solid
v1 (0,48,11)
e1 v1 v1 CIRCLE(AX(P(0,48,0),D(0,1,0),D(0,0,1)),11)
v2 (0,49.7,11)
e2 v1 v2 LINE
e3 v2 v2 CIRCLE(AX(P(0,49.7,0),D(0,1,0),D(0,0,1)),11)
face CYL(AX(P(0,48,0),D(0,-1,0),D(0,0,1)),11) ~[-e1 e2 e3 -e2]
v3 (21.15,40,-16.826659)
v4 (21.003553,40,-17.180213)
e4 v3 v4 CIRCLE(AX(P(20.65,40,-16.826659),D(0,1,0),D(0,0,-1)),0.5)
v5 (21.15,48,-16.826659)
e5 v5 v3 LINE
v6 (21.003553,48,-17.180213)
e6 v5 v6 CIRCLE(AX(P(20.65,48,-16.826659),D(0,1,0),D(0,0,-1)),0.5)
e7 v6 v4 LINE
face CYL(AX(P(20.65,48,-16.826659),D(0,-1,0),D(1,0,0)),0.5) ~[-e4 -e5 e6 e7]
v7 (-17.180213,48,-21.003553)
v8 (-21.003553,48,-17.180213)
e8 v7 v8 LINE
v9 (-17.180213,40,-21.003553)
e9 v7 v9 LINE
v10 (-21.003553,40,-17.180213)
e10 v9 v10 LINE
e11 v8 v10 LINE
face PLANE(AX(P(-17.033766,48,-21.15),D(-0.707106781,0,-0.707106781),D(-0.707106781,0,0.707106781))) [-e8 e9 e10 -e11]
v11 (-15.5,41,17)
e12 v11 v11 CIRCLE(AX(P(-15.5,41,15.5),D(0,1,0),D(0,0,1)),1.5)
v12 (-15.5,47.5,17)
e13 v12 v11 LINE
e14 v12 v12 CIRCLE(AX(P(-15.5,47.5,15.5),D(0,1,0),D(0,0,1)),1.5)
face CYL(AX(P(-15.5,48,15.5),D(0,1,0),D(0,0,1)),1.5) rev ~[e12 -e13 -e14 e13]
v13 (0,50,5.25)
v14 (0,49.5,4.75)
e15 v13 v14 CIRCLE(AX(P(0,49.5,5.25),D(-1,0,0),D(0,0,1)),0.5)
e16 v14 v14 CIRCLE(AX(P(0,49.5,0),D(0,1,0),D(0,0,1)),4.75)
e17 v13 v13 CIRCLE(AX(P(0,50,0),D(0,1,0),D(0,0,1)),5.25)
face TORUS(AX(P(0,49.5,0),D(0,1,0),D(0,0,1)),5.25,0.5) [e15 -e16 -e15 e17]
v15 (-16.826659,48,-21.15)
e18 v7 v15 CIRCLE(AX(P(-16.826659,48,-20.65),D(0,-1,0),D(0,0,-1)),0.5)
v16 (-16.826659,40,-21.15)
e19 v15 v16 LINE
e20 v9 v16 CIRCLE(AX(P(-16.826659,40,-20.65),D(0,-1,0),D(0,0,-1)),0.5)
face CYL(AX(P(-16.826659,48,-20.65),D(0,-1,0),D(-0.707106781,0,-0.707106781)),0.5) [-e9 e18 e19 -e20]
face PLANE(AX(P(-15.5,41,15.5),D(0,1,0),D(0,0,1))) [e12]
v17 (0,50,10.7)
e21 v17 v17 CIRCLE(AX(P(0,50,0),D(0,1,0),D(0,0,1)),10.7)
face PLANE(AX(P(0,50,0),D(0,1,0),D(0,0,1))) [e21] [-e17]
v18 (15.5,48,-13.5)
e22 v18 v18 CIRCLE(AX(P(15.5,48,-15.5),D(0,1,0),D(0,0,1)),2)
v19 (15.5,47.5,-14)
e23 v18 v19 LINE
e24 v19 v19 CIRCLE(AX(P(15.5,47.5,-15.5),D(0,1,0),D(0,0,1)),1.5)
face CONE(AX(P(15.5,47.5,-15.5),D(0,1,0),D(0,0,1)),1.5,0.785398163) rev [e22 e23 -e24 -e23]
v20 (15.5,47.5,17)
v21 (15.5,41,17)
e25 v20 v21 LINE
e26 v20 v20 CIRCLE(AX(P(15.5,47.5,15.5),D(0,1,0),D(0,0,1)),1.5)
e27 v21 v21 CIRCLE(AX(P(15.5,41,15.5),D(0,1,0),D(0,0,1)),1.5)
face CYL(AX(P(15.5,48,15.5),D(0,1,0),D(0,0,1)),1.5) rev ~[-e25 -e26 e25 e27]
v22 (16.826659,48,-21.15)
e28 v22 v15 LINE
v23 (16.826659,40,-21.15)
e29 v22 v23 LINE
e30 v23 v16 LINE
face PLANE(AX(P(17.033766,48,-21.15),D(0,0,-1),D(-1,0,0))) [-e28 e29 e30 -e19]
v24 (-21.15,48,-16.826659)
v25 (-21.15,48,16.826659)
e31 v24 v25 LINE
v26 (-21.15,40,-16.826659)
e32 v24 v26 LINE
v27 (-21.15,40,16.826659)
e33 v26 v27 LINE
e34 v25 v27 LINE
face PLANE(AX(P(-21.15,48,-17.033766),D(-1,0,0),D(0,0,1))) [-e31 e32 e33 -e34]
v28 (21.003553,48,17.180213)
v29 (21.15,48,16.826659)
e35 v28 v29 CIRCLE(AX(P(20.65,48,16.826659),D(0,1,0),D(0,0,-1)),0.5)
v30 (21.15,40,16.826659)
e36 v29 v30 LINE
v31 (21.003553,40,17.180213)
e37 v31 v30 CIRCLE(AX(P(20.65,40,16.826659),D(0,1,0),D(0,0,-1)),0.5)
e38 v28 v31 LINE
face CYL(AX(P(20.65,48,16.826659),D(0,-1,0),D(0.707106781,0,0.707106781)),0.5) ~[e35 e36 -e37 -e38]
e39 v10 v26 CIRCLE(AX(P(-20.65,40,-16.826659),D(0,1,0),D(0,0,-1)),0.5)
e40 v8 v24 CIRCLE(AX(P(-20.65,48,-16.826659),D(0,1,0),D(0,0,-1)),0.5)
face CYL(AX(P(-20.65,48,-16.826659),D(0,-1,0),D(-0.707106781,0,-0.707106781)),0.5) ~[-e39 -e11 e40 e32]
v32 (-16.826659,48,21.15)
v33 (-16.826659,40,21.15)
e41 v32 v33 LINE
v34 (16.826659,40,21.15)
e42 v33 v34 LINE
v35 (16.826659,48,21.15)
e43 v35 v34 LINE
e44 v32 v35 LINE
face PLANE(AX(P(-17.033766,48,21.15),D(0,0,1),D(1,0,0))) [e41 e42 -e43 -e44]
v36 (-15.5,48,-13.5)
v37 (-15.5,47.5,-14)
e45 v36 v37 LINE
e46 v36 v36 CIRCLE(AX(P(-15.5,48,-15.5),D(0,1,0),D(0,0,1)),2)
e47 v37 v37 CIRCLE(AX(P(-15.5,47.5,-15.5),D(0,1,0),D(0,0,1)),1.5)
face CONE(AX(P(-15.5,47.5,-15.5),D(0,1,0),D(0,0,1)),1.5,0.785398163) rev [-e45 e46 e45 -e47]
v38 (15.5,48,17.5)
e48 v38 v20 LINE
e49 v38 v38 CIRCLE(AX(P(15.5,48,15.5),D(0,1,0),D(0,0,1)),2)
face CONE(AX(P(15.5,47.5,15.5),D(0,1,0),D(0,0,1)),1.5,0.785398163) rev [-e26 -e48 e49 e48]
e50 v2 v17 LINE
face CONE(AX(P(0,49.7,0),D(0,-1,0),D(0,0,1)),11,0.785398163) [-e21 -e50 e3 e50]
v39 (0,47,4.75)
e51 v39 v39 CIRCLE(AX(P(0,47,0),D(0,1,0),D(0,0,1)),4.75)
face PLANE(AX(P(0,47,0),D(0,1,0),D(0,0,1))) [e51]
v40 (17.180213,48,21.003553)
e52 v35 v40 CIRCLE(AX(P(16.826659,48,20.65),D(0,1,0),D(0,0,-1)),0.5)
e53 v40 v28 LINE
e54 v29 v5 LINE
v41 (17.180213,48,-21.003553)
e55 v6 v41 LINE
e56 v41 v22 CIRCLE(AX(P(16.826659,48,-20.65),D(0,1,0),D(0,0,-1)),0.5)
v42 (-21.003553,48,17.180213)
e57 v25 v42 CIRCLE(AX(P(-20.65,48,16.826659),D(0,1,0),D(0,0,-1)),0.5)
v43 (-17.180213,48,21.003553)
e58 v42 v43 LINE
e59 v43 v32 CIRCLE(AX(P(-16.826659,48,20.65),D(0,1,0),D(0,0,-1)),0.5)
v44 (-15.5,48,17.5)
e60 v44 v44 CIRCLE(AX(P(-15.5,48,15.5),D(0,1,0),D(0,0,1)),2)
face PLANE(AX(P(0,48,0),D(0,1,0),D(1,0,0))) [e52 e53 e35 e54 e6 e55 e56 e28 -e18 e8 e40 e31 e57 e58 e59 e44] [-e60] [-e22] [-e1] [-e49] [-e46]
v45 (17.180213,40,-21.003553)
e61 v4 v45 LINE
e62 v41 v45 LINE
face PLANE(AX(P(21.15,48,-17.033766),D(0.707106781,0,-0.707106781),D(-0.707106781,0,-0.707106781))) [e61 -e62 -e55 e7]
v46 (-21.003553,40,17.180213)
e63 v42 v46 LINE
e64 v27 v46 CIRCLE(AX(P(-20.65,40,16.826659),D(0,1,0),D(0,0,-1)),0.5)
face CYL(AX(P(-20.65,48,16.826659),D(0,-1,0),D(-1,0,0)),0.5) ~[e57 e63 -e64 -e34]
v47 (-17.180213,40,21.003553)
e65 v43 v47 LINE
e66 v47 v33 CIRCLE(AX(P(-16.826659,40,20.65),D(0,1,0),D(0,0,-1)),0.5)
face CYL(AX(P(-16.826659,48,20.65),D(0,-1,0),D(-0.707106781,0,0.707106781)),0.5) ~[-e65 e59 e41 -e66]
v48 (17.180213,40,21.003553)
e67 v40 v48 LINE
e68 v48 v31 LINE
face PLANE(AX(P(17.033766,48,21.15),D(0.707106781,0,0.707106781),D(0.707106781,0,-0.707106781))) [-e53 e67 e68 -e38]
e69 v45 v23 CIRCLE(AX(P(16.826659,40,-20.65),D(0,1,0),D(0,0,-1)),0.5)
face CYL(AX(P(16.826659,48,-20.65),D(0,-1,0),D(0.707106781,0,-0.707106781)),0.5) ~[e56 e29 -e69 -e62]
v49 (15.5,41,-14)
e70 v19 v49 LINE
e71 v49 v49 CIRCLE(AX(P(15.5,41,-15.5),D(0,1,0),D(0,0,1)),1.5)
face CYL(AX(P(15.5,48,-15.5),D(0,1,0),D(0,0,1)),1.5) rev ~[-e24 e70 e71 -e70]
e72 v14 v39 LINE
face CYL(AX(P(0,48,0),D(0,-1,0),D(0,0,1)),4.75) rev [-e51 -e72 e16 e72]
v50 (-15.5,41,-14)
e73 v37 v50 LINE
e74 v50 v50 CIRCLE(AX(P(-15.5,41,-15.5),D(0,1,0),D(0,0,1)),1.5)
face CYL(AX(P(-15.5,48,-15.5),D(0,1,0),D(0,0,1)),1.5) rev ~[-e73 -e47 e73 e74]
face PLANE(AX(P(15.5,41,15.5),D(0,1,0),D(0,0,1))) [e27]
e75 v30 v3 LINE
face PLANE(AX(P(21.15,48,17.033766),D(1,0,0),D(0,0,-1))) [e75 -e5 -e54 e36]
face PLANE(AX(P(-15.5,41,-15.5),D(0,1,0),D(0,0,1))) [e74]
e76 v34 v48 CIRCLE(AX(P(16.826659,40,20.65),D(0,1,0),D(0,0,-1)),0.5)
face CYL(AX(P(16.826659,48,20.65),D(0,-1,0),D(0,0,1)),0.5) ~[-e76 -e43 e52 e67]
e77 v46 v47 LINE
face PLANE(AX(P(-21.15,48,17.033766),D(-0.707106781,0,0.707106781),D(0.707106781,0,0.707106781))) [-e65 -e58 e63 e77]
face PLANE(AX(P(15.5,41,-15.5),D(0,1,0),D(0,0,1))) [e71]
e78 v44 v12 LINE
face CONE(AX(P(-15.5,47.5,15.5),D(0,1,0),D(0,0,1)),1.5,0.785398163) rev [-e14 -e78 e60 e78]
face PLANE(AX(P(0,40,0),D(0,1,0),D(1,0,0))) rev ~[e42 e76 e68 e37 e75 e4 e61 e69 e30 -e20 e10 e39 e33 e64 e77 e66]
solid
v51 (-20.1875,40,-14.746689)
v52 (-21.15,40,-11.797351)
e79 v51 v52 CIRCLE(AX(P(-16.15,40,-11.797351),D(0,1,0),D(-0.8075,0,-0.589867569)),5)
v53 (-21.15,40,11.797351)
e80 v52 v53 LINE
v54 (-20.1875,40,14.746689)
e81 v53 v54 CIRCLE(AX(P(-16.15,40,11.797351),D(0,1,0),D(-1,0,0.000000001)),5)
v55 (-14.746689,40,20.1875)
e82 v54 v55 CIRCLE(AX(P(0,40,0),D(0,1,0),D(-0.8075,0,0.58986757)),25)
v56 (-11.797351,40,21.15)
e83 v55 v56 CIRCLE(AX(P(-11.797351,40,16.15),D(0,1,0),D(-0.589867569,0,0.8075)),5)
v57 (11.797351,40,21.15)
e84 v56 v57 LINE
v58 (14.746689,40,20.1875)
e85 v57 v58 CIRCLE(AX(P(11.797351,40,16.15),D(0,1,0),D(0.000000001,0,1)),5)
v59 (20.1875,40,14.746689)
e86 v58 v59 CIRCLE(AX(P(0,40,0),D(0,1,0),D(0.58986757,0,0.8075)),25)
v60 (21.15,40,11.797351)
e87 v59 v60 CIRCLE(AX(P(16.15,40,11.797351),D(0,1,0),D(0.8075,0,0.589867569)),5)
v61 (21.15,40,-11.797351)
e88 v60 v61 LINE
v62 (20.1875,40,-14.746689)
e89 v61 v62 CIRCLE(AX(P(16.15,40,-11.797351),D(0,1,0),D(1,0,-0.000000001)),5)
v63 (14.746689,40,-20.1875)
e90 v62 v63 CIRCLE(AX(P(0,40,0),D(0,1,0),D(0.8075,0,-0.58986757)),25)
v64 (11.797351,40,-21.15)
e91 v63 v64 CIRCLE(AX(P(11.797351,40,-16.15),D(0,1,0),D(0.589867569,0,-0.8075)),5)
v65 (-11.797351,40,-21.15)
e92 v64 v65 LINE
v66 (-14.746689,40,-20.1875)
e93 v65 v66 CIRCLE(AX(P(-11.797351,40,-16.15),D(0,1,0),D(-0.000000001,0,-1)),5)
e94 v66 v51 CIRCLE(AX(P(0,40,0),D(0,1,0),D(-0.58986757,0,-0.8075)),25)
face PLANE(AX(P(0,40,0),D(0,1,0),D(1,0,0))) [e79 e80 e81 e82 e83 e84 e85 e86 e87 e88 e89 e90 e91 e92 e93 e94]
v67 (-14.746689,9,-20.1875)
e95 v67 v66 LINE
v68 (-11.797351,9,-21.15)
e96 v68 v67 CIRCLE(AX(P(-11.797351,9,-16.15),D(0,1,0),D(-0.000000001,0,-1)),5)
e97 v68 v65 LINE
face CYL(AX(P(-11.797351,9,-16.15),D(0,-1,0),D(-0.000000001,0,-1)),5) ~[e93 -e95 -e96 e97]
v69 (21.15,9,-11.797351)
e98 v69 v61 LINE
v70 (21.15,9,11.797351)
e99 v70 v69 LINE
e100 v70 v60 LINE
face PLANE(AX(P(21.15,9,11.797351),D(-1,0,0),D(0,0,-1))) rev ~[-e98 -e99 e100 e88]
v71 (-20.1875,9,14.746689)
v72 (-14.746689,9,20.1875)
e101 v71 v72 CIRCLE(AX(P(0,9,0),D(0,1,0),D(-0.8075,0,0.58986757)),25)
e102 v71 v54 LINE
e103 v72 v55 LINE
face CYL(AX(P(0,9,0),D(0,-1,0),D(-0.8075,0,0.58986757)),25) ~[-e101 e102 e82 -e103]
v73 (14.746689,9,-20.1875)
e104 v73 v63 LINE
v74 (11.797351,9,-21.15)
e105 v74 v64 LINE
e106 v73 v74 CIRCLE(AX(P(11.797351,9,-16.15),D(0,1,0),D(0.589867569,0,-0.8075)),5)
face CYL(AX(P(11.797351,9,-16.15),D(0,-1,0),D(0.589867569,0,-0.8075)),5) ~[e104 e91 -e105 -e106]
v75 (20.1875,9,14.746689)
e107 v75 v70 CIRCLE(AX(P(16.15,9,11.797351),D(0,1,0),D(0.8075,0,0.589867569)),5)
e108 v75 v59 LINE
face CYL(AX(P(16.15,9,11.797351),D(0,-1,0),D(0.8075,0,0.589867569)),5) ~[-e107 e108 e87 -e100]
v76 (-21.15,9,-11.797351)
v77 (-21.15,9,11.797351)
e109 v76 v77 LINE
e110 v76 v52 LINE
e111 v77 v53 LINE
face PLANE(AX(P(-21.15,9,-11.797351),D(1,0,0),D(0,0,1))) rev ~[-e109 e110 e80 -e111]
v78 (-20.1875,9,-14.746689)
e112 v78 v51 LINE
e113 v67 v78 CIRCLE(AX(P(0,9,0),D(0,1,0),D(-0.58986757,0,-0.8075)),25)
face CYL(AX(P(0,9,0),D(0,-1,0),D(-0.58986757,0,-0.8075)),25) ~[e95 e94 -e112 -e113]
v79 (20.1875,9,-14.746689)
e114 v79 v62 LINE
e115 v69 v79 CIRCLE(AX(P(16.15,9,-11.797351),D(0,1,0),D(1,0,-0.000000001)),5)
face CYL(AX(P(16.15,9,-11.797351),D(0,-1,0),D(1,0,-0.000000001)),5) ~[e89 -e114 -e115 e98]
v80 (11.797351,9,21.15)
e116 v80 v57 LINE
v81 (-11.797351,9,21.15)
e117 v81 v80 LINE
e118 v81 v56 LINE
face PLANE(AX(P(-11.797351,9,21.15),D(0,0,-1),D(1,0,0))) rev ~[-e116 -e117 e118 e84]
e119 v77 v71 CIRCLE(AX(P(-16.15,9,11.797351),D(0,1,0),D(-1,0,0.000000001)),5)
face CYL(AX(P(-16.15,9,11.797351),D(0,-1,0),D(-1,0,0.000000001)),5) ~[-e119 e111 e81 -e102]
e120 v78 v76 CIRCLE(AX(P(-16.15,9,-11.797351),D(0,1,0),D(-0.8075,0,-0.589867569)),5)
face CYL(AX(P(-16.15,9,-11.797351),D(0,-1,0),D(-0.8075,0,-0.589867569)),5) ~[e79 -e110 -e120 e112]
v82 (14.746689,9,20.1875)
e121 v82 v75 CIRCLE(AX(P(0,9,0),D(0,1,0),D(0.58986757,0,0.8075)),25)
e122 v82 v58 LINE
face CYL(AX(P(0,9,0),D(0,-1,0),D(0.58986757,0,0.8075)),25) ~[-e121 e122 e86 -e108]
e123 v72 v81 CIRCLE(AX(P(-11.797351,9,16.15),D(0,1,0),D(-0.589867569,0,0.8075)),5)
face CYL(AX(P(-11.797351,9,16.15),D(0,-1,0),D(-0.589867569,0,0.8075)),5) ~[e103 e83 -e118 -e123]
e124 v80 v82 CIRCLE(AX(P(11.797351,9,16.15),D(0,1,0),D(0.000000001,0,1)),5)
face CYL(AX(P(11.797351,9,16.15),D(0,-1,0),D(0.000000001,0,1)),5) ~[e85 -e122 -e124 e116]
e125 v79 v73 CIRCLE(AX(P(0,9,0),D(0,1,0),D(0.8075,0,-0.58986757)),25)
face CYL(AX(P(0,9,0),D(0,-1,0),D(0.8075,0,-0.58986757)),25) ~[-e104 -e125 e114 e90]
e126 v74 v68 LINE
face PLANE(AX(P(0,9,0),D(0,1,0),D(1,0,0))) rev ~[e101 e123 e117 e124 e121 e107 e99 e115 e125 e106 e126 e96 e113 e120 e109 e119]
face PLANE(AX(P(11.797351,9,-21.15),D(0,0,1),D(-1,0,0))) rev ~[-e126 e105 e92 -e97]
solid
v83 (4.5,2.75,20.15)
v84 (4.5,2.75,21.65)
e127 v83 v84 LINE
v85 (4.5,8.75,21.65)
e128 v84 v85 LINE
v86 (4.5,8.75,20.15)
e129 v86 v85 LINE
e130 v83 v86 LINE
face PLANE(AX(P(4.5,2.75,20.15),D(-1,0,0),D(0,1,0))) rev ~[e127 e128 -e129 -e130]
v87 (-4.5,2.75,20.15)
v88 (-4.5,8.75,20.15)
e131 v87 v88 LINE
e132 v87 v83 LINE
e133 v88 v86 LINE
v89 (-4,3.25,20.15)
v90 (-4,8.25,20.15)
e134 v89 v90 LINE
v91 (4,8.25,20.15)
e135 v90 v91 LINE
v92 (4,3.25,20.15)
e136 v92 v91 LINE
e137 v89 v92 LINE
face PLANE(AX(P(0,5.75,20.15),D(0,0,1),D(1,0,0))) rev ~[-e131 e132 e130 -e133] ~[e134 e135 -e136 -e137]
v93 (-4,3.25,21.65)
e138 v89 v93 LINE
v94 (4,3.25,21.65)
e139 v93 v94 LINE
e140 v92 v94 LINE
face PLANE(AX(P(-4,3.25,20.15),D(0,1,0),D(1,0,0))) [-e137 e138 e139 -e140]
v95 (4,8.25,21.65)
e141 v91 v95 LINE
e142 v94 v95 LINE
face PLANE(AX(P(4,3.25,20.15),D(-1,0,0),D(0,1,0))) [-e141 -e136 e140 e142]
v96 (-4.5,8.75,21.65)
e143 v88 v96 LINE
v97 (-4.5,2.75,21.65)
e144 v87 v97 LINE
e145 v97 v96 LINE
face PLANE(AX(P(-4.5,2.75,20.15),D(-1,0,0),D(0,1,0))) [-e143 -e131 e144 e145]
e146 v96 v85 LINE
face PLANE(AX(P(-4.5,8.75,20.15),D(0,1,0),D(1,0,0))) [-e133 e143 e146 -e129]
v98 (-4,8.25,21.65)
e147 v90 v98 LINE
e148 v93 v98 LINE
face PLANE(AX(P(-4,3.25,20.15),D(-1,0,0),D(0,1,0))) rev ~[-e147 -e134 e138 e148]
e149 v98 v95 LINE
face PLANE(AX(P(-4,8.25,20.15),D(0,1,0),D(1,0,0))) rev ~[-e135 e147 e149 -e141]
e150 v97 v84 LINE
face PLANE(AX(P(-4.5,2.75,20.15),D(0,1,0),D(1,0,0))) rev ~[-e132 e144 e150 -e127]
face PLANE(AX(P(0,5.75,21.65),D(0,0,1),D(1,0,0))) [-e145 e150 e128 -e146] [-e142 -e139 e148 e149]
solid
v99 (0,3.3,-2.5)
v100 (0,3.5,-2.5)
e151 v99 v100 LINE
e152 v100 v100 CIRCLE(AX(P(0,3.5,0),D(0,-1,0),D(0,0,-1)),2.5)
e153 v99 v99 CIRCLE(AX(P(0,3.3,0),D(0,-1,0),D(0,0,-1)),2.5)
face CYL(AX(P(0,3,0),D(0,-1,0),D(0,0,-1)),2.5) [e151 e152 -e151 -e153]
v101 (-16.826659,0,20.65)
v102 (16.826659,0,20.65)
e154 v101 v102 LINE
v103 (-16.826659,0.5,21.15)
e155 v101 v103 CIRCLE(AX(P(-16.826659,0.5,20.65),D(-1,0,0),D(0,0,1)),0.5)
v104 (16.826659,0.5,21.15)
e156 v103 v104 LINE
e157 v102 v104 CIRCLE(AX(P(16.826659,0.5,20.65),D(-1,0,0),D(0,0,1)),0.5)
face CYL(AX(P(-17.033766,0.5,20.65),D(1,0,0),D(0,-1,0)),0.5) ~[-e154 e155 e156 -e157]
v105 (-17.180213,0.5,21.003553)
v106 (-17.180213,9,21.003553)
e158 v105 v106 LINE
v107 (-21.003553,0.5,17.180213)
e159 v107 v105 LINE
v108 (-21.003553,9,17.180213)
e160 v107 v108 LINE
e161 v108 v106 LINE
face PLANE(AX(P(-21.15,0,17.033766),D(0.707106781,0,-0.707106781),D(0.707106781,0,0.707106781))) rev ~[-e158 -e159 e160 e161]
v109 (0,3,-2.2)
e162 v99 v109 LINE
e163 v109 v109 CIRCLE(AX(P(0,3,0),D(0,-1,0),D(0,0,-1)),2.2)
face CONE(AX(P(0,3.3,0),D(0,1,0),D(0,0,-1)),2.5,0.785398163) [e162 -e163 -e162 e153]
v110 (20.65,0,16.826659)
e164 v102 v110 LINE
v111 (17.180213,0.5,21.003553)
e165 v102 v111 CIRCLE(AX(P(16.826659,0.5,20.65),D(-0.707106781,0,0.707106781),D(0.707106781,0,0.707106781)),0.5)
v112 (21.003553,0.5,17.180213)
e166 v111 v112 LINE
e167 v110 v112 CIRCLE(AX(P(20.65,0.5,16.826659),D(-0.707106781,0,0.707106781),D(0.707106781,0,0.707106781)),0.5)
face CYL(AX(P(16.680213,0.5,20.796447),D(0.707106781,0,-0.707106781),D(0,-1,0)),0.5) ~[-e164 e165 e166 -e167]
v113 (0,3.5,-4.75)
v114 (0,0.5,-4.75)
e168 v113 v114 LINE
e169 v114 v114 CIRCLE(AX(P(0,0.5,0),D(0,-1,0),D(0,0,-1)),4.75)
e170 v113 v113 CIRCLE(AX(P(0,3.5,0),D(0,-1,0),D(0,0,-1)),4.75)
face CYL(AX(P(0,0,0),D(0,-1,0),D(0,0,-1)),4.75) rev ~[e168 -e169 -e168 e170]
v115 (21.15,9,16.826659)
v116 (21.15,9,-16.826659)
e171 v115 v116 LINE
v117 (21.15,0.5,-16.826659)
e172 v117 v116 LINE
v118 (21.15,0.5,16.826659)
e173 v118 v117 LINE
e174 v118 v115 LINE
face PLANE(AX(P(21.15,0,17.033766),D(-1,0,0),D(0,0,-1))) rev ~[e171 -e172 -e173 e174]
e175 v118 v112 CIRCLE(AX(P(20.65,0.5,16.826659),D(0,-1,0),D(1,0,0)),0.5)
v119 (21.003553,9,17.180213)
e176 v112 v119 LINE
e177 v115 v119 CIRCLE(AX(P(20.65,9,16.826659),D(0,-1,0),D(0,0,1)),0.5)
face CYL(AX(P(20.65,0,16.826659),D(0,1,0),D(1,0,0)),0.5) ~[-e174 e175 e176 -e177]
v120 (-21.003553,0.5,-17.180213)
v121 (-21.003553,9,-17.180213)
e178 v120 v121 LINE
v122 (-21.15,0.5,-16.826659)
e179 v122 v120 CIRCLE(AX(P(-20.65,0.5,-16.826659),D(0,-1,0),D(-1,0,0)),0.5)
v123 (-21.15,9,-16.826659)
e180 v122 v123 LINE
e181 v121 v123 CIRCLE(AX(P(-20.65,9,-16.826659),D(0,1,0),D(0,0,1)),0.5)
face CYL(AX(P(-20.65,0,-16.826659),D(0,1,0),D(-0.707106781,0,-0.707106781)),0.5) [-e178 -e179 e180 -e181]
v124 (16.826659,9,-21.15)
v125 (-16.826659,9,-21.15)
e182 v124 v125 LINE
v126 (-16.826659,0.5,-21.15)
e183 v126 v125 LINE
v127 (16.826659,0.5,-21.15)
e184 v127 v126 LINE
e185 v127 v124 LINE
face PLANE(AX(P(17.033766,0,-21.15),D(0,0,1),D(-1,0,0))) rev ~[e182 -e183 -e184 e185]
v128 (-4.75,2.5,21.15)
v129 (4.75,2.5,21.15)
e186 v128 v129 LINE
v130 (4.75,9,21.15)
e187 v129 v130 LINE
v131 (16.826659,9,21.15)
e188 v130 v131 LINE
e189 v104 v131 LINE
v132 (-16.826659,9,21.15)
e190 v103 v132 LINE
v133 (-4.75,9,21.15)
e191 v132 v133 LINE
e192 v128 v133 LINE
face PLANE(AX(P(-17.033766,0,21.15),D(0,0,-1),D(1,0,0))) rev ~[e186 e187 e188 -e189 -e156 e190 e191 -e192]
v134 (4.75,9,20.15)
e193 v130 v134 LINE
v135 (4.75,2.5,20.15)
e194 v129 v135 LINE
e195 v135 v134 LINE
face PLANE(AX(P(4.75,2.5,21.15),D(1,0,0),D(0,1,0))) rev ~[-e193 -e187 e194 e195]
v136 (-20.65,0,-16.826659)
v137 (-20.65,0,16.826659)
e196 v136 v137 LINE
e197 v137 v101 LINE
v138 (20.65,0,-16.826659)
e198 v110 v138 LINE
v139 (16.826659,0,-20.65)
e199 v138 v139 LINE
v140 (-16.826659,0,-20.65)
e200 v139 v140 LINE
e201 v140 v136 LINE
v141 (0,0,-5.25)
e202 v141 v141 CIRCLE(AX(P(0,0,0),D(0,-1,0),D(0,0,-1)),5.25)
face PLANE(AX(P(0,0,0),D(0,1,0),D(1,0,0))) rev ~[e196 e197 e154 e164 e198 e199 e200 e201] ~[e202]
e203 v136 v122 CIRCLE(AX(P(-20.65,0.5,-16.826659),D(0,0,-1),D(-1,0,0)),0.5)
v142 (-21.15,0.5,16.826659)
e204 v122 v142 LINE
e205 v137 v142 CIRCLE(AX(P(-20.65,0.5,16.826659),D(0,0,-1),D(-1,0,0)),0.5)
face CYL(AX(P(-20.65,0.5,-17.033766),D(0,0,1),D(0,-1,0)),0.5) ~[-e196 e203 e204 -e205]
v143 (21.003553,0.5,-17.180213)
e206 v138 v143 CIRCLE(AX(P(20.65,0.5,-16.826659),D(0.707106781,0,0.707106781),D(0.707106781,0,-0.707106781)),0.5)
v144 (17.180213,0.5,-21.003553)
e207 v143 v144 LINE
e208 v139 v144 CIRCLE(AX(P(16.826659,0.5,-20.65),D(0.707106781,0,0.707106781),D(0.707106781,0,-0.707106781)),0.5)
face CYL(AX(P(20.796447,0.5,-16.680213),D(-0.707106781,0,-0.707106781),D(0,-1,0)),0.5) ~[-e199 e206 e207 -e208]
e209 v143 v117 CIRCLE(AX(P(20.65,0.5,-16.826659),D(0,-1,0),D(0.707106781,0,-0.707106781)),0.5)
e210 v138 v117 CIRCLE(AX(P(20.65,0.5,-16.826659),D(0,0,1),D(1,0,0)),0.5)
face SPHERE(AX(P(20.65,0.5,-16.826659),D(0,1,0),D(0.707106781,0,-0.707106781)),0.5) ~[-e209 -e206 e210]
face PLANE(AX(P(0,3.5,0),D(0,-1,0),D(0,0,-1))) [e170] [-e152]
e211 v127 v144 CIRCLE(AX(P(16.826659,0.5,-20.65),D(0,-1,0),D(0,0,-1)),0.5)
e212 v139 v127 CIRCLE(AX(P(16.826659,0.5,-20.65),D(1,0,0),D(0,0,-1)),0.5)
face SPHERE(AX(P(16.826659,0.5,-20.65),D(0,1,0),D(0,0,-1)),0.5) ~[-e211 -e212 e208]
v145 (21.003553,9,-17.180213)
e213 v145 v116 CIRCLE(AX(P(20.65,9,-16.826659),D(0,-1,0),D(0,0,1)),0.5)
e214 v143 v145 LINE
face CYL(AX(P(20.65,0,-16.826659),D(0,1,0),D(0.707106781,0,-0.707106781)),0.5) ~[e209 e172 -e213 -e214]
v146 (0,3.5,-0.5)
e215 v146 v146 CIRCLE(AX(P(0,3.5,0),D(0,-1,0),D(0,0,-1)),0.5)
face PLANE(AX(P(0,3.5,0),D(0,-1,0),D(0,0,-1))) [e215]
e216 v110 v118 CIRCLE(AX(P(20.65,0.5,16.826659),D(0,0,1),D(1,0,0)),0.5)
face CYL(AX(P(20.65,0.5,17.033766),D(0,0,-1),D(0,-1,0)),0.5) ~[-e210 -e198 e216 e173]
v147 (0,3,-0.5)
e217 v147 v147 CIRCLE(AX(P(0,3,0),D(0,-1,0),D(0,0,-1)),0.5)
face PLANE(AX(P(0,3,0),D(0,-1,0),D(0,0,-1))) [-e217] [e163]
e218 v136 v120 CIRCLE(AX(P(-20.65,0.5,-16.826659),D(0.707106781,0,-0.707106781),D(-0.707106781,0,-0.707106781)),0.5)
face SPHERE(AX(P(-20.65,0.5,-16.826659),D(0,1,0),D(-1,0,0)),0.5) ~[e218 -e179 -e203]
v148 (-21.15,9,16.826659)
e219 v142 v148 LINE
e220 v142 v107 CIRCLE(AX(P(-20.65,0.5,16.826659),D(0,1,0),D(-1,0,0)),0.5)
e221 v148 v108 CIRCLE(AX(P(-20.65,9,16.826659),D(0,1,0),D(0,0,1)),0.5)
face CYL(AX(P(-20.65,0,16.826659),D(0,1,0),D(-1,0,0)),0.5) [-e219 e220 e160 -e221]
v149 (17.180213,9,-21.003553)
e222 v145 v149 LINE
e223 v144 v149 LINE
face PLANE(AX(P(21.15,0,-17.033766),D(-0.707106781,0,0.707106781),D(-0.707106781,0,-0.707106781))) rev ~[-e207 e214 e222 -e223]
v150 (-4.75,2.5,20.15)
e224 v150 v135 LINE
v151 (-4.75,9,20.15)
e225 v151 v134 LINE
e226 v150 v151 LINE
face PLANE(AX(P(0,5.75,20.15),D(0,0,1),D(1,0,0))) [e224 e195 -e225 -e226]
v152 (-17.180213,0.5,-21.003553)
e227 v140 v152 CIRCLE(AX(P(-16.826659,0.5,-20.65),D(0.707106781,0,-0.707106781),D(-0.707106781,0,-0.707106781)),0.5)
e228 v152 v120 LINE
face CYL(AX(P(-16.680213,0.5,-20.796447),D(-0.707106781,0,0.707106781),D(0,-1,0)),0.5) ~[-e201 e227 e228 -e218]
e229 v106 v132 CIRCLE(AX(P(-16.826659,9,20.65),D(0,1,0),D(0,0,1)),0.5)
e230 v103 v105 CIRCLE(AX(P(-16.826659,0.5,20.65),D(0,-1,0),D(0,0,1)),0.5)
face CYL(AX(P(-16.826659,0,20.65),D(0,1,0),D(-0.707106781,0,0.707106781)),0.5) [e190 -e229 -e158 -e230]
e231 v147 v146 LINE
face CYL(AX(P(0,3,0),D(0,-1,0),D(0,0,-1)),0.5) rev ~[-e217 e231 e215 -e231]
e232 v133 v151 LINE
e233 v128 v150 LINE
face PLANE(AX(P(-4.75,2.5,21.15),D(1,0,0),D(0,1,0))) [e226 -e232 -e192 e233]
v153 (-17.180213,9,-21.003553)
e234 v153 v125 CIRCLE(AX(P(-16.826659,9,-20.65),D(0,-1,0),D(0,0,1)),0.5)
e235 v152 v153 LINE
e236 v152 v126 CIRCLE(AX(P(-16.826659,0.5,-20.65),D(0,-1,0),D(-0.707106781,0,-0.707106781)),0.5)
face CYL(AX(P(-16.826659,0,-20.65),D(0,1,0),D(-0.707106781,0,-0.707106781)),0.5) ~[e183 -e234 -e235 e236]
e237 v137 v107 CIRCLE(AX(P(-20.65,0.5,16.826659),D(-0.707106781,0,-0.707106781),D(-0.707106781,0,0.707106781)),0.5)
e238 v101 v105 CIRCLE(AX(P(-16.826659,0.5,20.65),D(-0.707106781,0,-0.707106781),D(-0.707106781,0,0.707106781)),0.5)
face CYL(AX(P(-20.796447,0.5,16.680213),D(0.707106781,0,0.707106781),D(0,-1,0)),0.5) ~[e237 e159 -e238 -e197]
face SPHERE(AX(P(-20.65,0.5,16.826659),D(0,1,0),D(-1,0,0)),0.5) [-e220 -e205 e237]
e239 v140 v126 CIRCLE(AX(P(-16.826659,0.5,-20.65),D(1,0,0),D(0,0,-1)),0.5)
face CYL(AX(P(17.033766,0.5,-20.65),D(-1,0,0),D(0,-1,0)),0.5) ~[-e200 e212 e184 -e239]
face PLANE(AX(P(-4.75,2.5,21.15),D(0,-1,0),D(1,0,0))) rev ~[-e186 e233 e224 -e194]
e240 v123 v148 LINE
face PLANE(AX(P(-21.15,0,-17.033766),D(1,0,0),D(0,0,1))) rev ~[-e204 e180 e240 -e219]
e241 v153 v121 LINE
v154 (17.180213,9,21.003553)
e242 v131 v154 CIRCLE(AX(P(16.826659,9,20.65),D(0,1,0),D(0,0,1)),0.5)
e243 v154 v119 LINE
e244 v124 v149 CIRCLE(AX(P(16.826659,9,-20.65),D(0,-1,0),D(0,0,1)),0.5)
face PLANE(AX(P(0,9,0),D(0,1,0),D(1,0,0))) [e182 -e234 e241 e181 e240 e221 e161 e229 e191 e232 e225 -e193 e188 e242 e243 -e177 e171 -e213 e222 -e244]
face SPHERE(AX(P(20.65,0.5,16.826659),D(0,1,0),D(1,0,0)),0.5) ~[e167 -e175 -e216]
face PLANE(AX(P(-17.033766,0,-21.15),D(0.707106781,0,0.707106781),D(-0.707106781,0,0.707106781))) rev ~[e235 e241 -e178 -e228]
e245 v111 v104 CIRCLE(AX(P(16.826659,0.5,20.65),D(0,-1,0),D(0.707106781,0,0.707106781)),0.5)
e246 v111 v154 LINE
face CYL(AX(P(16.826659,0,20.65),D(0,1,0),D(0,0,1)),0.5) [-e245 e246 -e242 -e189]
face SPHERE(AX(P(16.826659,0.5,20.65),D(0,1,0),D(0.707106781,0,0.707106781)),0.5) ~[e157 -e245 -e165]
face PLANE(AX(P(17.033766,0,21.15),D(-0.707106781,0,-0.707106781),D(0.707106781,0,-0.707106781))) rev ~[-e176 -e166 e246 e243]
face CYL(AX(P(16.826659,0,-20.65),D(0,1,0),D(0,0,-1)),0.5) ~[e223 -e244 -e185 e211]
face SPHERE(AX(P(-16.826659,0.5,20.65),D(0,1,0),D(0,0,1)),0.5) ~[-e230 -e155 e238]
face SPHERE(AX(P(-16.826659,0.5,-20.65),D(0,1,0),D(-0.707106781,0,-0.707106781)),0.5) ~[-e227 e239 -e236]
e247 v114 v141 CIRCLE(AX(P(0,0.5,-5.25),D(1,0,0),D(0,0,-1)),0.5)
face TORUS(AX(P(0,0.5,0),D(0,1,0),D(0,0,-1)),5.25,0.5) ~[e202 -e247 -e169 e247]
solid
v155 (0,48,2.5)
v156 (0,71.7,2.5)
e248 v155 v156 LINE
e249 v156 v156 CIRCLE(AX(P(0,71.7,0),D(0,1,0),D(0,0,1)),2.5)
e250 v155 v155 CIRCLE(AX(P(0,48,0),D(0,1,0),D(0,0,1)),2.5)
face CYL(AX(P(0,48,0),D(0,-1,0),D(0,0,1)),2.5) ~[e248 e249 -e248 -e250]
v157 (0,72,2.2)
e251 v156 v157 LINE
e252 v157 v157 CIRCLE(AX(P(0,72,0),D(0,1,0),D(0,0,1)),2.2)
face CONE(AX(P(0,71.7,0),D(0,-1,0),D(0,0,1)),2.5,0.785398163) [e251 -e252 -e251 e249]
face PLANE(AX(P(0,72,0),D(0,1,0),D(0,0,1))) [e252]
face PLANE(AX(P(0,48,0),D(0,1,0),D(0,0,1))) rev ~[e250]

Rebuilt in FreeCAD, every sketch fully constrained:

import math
import FreeCAD as App
import Part
import Sketcher
from FreeCAD import Vector
Q = App.Units.Quantity


def edges_at(feature, points):
    """Names of the edges that pass closest to the given points."""
    edges = feature.Shape.Edges
    near = lambda p: min(range(len(edges)), key=lambda i: edges[i].distToShape(Part.Vertex(*p))[0])
    return sorted({f"Edge{near(p) + 1}" for p in points})

doc = App.newDocument("Part")
body = doc.addObject("PartDesign::Body", "Body")

sketch1 = body.newObject("Sketcher::SketchObject", "Sketch")
sketch1.AttachmentSupport = (doc.getObject("XZ_Plane"), [""])
sketch1.MapMode = "FlatFace"
sketch1.addGeometry(Part.LineSegment(Vector(-17.033766, -21.15, 0), Vector(-21.15, -17.033766, 0)), False)
sketch1.addGeometry(Part.LineSegment(Vector(-21.15, -17.033766, 0), Vector(-21.15, 17.033766, 0)), False)
sketch1.addGeometry(Part.LineSegment(Vector(-21.15, 17.033766, 0), Vector(-17.033766, 21.15, 0)), False)
sketch1.addGeometry(Part.LineSegment(Vector(-17.033766, 21.15, 0), Vector(17.033766, 21.15, 0)), False)
sketch1.addGeometry(Part.LineSegment(Vector(17.033766, 21.15, 0), Vector(21.15, 17.033766, 0)), False)
sketch1.addGeometry(Part.LineSegment(Vector(21.15, 17.033766, 0), Vector(21.15, -17.033766, 0)), False)
sketch1.addGeometry(Part.LineSegment(Vector(21.15, -17.033766, 0), Vector(17.033766, -21.15, 0)), False)
sketch1.addGeometry(Part.LineSegment(Vector(17.033766, -21.15, 0), Vector(-17.033766, -21.15, 0)), False)
sketch1.addConstraint(Sketcher.Constraint("Coincident", 0, 2, 1, 1))
sketch1.addConstraint(Sketcher.Constraint("Coincident", 1, 2, 2, 1))
sketch1.addConstraint(Sketcher.Constraint("Coincident", 2, 2, 3, 1))
sketch1.addConstraint(Sketcher.Constraint("Coincident", 3, 2, 4, 1))
sketch1.addConstraint(Sketcher.Constraint("Coincident", 4, 2, 5, 1))
sketch1.addConstraint(Sketcher.Constraint("Coincident", 5, 2, 6, 1))
sketch1.addConstraint(Sketcher.Constraint("Coincident", 6, 2, 7, 1))
sketch1.addConstraint(Sketcher.Constraint("Coincident", 7, 2, 0, 1))
sketch1.addConstraint(Sketcher.Constraint("Vertical", 1))
sketch1.addConstraint(Sketcher.Constraint("Horizontal", 3))
sketch1.addConstraint(Sketcher.Constraint("Vertical", 5))
sketch1.addConstraint(Sketcher.Constraint("Horizontal", 7))
sketch1.addConstraint(Sketcher.Constraint("Symmetric", 0, 2, 4, 2, -1, 1))
sketch1.addConstraint(Sketcher.Constraint("Symmetric", 2, 2, 6, 2, -1, 1))
sketch1.addConstraint(Sketcher.Constraint("Perpendicular", 0, 2))
sketch1.addConstraint(Sketcher.Constraint("Perpendicular", 2, 4))
sketch1.addConstraint(Sketcher.Constraint("Perpendicular", 4, 6))
sketch1.addConstraint(Sketcher.Constraint("Horizontal", 1, 2, 4, 2))
sketch1.addConstraint(Sketcher.Constraint("Vertical", 3, 2, 6, 2))
sketch1.addConstraint(Sketcher.Constraint("Equal", 7, 1))
sketch1.addConstraint(Sketcher.Constraint("DistanceX", 1, 2, 4, 2, Q("42.3 mm")))
sketch1.addConstraint(Sketcher.Constraint("DistanceX", 3, 1, 3, 2, Q("34.067532 mm")))
pad1 = body.newObject("PartDesign::Pad", "Pad")
pad1.Profile = sketch1
pad1.Length = 9
pad1.Reversed = True

sketch2 = body.newObject("Sketcher::SketchObject", "Sketch001")
sketch2.AttachmentSupport = (doc.getObject("XZ_Plane"), [""])
sketch2.MapMode = "FlatFace"
sketch2.addGeometry(Part.Circle(Vector(0, 0, 0), Vector(0, 0, 1), 4.75), False)
sketch2.addConstraint(Sketcher.Constraint("Coincident", 0, 3, -1, 1))
sketch2.addConstraint(Sketcher.Constraint("Diameter", 0, Q("9.5 mm")))
pocket1 = body.newObject("PartDesign::Pocket", "Pocket")
pocket1.Profile = sketch2
pocket1.Length = 3

sketch3 = body.newObject("Sketcher::SketchObject", "Sketch002")
sketch3.AttachmentSupport = (doc.getObject("XZ_Plane"), [""])
sketch3.MapMode = "FlatFace"
sketch3.AttachmentOffset = App.Placement(Vector(0, 0, -3), App.Rotation())
sketch3.addGeometry(Part.Circle(Vector(0, 0, 0), Vector(0, 0, 1), 4.75), False)
sketch3.addGeometry(Part.Circle(Vector(0, 0, 0), Vector(0, 0, 1), 2.5), False)
sketch3.addConstraint(Sketcher.Constraint("Coincident", 0, 3, -1, 1))
sketch3.addConstraint(Sketcher.Constraint("Coincident", 1, 3, -1, 1))
sketch3.addConstraint(Sketcher.Constraint("Diameter", 1, Q("5 mm")))
sketch3.addConstraint(Sketcher.Constraint("Diameter", 0, Q("9.5 mm")))
pocket2 = body.newObject("PartDesign::Pocket", "Pocket001")
pocket2.Profile = sketch3
pocket2.Length = 0.5

sketch4 = body.newObject("Sketcher::SketchObject", "Sketch003")
sketch4.AttachmentSupport = (doc.getObject("XZ_Plane"), [""])
sketch4.MapMode = "FlatFace"
sketch4.AttachmentOffset = App.Placement(Vector(0, 0, -3), App.Rotation())
sketch4.addGeometry(Part.Circle(Vector(0, 0, 0), Vector(0, 0, 1), 0.5), False)
sketch4.addConstraint(Sketcher.Constraint("Coincident", 0, 3, -1, 1))
sketch4.addConstraint(Sketcher.Constraint("Diameter", 0, Q("1 mm")))
pocket3 = body.newObject("PartDesign::Pocket", "Pocket002")
pocket3.Profile = sketch4
pocket3.Length = 0.5
doc.recompute()

chamfer = body.newObject("PartDesign::Chamfer", "Chamfer")
chamfer.Base = (pocket3, edges_at(pocket3, [(0, 3, 2.5)]))
chamfer.Size = 0.3
doc.recompute()

fillet = body.newObject("PartDesign::Fillet", "Fillet")
fillet.Base = (chamfer, edges_at(chamfer, [
    (0, 0, -21.15),
    (19.092, 0, -19.092),
    (21.15, 0, 0),
    (19.092, 0, 19.092),
    (0, 0, 21.15),
    (-19.092, 0, 19.092),
    (-21.15, 4.5, 17.034),
    (-21.15, 4.5, -17.034),
    (-17.034, 4.5, -21.15),
    (17.034, 4.5, -21.15),
    (21.15, 4.5, -17.034),
    (21.15, 4.5, 17.034),
    (17.034, 4.5, 21.15),
    (-17.034, 4.5, 21.15),
    (0, 0, 4.75),
    (-21.15, 0, 0),
    (-19.092, 0, -19.092),
]))
fillet.Radius = 0.5

sketch5 = body.newObject("Sketcher::SketchObject", "Sketch004")
sketch5.AttachmentSupport = (doc.getObject("XY_Plane"), [""])
sketch5.MapMode = "FlatFace"
sketch5.AttachmentOffset = App.Placement(Vector(0, 0, 21.15), App.Rotation())
sketch5.addGeometry(Part.LineSegment(Vector(-4.75, 9, 0), Vector(-4.75, 2.5, 0)), False)
sketch5.addGeometry(Part.LineSegment(Vector(-4.75, 2.5, 0), Vector(4.75, 2.5, 0)), False)
sketch5.addGeometry(Part.LineSegment(Vector(4.75, 2.5, 0), Vector(4.75, 9, 0)), False)
sketch5.addGeometry(Part.LineSegment(Vector(4.75, 9, 0), Vector(-4.75, 9, 0)), False)
sketch5.addConstraint(Sketcher.Constraint("Coincident", 0, 2, 1, 1))
sketch5.addConstraint(Sketcher.Constraint("Coincident", 1, 2, 2, 1))
sketch5.addConstraint(Sketcher.Constraint("Coincident", 2, 2, 3, 1))
sketch5.addConstraint(Sketcher.Constraint("Coincident", 3, 2, 0, 1))
sketch5.addConstraint(Sketcher.Constraint("Vertical", 0))
sketch5.addConstraint(Sketcher.Constraint("Horizontal", 1))
sketch5.addConstraint(Sketcher.Constraint("Vertical", 2))
sketch5.addConstraint(Sketcher.Constraint("Horizontal", 3))
sketch5.addConstraint(Sketcher.Constraint("DistanceX", 1, 1, 1, 2, Q("9.5 mm")))
sketch5.addConstraint(Sketcher.Constraint("DistanceY", 0, 2, 0, 1, Q("6.5 mm")))
sketch5.addConstraint(Sketcher.Constraint("DistanceY", -1, 1, 2, 2, Q("9 mm")))
sketch5.addConstraint(Sketcher.Constraint("DistanceX", 0, 2, -1, 1, Q("4.75 mm")))
pocket4 = body.newObject("PartDesign::Pocket", "Pocket003")
pocket4.Profile = sketch5
pocket4.Length = 1
body2 = doc.addObject("PartDesign::Body", "Body001")

sketch6 = body2.newObject("Sketcher::SketchObject", "Sketch005")
sketch6.AttachmentSupport = (doc.getObject("XZ_Plane001"), [""])
sketch6.MapMode = "FlatFace"
sketch6.AttachmentOffset = App.Placement(Vector(0, 0, -48), App.Rotation())
sketch6.addGeometry(Part.LineSegment(Vector(-17.033766, -21.15, 0), Vector(-21.15, -17.033766, 0)), False)
sketch6.addGeometry(Part.LineSegment(Vector(-21.15, -17.033766, 0), Vector(-21.15, 17.033766, 0)), False)
sketch6.addGeometry(Part.LineSegment(Vector(-21.15, 17.033766, 0), Vector(-17.033766, 21.15, 0)), False)
sketch6.addGeometry(Part.LineSegment(Vector(-17.033766, 21.15, 0), Vector(17.033766, 21.15, 0)), False)
sketch6.addGeometry(Part.LineSegment(Vector(17.033766, 21.15, 0), Vector(21.15, 17.033766, 0)), False)
sketch6.addGeometry(Part.LineSegment(Vector(21.15, 17.033766, 0), Vector(21.15, -17.033766, 0)), False)
sketch6.addGeometry(Part.LineSegment(Vector(21.15, -17.033766, 0), Vector(17.033766, -21.15, 0)), False)
sketch6.addGeometry(Part.LineSegment(Vector(17.033766, -21.15, 0), Vector(-17.033766, -21.15, 0)), False)
sketch6.addConstraint(Sketcher.Constraint("Coincident", 0, 2, 1, 1))
sketch6.addConstraint(Sketcher.Constraint("Coincident", 1, 2, 2, 1))
sketch6.addConstraint(Sketcher.Constraint("Coincident", 2, 2, 3, 1))
sketch6.addConstraint(Sketcher.Constraint("Coincident", 3, 2, 4, 1))
sketch6.addConstraint(Sketcher.Constraint("Coincident", 4, 2, 5, 1))
sketch6.addConstraint(Sketcher.Constraint("Coincident", 5, 2, 6, 1))
sketch6.addConstraint(Sketcher.Constraint("Coincident", 6, 2, 7, 1))
sketch6.addConstraint(Sketcher.Constraint("Coincident", 7, 2, 0, 1))
sketch6.addConstraint(Sketcher.Constraint("Vertical", 1))
sketch6.addConstraint(Sketcher.Constraint("Horizontal", 3))
sketch6.addConstraint(Sketcher.Constraint("Vertical", 5))
sketch6.addConstraint(Sketcher.Constraint("Horizontal", 7))
sketch6.addConstraint(Sketcher.Constraint("Symmetric", 0, 2, 4, 2, -1, 1))
sketch6.addConstraint(Sketcher.Constraint("Symmetric", 2, 2, 6, 2, -1, 1))
sketch6.addConstraint(Sketcher.Constraint("Perpendicular", 0, 2))
sketch6.addConstraint(Sketcher.Constraint("Perpendicular", 2, 4))
sketch6.addConstraint(Sketcher.Constraint("Perpendicular", 4, 6))
sketch6.addConstraint(Sketcher.Constraint("Horizontal", 1, 2, 4, 2))
sketch6.addConstraint(Sketcher.Constraint("Vertical", 3, 2, 6, 2))
sketch6.addConstraint(Sketcher.Constraint("Equal", 7, 1))
sketch6.addConstraint(Sketcher.Constraint("DistanceX", 1, 2, 4, 2, Q("42.3 mm")))
sketch6.addConstraint(Sketcher.Constraint("DistanceX", 3, 1, 3, 2, Q("34.067532 mm")))
pad2 = body2.newObject("PartDesign::Pad", "Pad001")
pad2.Profile = sketch6
pad2.Length = 8
doc.recompute()

fillet2 = body2.newObject("PartDesign::Fillet", "Fillet001")
fillet2.Base = (pad2, edges_at(pad2, [
    (-21.15, 44, 17.034),
    (-21.15, 44, -17.034),
    (-17.034, 44, -21.15),
    (17.034, 44, -21.15),
    (21.15, 44, -17.034),
    (21.15, 44, 17.034),
    (17.034, 44, 21.15),
    (-17.034, 44, 21.15),
]))
fillet2.Radius = 0.5

sketch7 = body2.newObject("Sketcher::SketchObject", "Sketch006")
sketch7.AttachmentSupport = (doc.getObject("XZ_Plane001"), [""])
sketch7.MapMode = "FlatFace"
sketch7.AttachmentOffset = App.Placement(Vector(0, 0, -48), App.Rotation())
sketch7.addGeometry(Part.Circle(Vector(0, 0, 0), Vector(0, 0, 1), 11), False)
sketch7.addGeometry(Part.Circle(Vector(0, 0, 0), Vector(0, 0, 1), 4.75), False)
sketch7.addConstraint(Sketcher.Constraint("Coincident", 0, 3, -1, 1))
sketch7.addConstraint(Sketcher.Constraint("Coincident", 1, 3, -1, 1))
sketch7.addConstraint(Sketcher.Constraint("Diameter", 0, Q("22 mm")))
sketch7.addConstraint(Sketcher.Constraint("Diameter", 1, Q("9.5 mm")))
pad3 = body2.newObject("PartDesign::Pad", "Pad002")
pad3.Profile = sketch7
pad3.Length = 2
pad3.Reversed = True

sketch8 = body2.newObject("Sketcher::SketchObject", "Sketch007")
sketch8.AttachmentSupport = (doc.getObject("XZ_Plane001"), [""])
sketch8.MapMode = "FlatFace"
sketch8.AttachmentOffset = App.Placement(Vector(0, 0, -47), App.Rotation())
sketch8.addGeometry(Part.Circle(Vector(0, 0, 0), Vector(0, 0, 1), 4.75), False)
sketch8.addConstraint(Sketcher.Constraint("Coincident", 0, 3, -1, 1))
sketch8.addConstraint(Sketcher.Constraint("Diameter", 0, Q("9.5 mm")))
pocket5 = body2.newObject("PartDesign::Pocket", "Pocket004")
pocket5.Profile = sketch8
pocket5.Length = 1
doc.recompute()

chamfer2 = body2.newObject("PartDesign::Chamfer", "Chamfer001")
chamfer2.Base = (pocket5, edges_at(pocket5, [(0, 50, -11)]))
chamfer2.Size = 0.3
doc.recompute()

fillet3 = body2.newObject("PartDesign::Fillet", "Fillet002")
fillet3.Base = (chamfer2, edges_at(chamfer2, [(0, 50, -4.75)]))
fillet3.Radius = 0.5

sketch9 = body2.newObject("Sketcher::SketchObject", "Sketch008")
sketch9.AttachmentSupport = (doc.getObject("XZ_Plane001"), [""])
sketch9.MapMode = "FlatFace"
sketch9.AttachmentOffset = App.Placement(Vector(0, 0, -48), App.Rotation())
sketch9.addGeometry(Part.Circle(Vector(-15.5, -15.5, 0), Vector(0, 0, 1), 1.5), False)
sketch9.addGeometry(Part.Circle(Vector(15.5, -15.5, 0), Vector(0, 0, 1), 1.5), False)
sketch9.addGeometry(Part.Circle(Vector(15.5, 15.5, 0), Vector(0, 0, 1), 1.5), False)
sketch9.addGeometry(Part.Circle(Vector(-15.5, 15.5, 0), Vector(0, 0, 1), 1.5), False)
sketch9.addConstraint(Sketcher.Constraint("Equal", 0, 1))
sketch9.addConstraint(Sketcher.Constraint("Equal", 1, 2))
sketch9.addConstraint(Sketcher.Constraint("Equal", 2, 3))
sketch9.addConstraint(Sketcher.Constraint("Symmetric", 0, 3, 2, 3, -1, 1))
sketch9.addConstraint(Sketcher.Constraint("Symmetric", 1, 3, 3, 3, -1, 1))
sketch9.addConstraint(Sketcher.Constraint("Symmetric", 0, 3, 1, 3, -2))
sketch9.addConstraint(Sketcher.Constraint("Diameter", 0, Q("3 mm")))
sketch9.addConstraint(Sketcher.Constraint("DistanceX", 0, 3, 1, 3, Q("31 mm")))
sketch9.addConstraint(Sketcher.Constraint("DistanceY", 1, 3, 2, 3, Q("31 mm")))
pocket6 = body2.newObject("PartDesign::Pocket", "Pocket005")
pocket6.Profile = sketch9
pocket6.Length = 7
pocket6.Reversed = True
doc.recompute()

chamfer3 = body2.newObject("PartDesign::Chamfer", "Chamfer002")
chamfer3.Base = (pocket6, edges_at(pocket6, [
    (15.5, 48, -17),
    (15.5, 48, 14),
    (-15.5, 48, 14),
    (-15.5, 48, -17),
]))
chamfer3.Size = 0.5
body3 = doc.addObject("PartDesign::Body", "Body002")

sketch10 = body3.newObject("Sketcher::SketchObject", "Sketch009")
sketch10.AttachmentSupport = (doc.getObject("XZ_Plane002"), [""])
sketch10.MapMode = "FlatFace"
sketch10.AttachmentOffset = App.Placement(Vector(0, 0, -9), App.Rotation())
sketch10.addGeometry(Part.LineSegment(Vector(-11.797351, 21.15, 0), Vector(11.797351, 21.15, 0)), False)
sketch10.addGeometry(Part.ArcOfCircle(Part.Circle(Vector(11.797351, 16.15, 0), Vector(0, 0, 1), 5), math.radians(53.852389), math.radians(90)), False)
sketch10.addGeometry(Part.ArcOfCircle(Part.Circle(Vector(0, 0, 0), Vector(0, 0, 1), 25), math.radians(36.147611), math.radians(53.852389)), False)
sketch10.addGeometry(Part.ArcOfCircle(Part.Circle(Vector(16.15, 11.797351, 0), Vector(0, 0, 1), 5), math.radians(0), math.radians(36.147611)), False)
sketch10.addGeometry(Part.LineSegment(Vector(21.15, 11.797351, 0), Vector(21.15, -11.797351, 0)), False)
sketch10.addGeometry(Part.ArcOfCircle(Part.Circle(Vector(16.15, -11.797351, 0), Vector(0, 0, 1), 5), math.radians(-36.147611), math.radians(0)), False)
sketch10.addGeometry(Part.ArcOfCircle(Part.Circle(Vector(0, 0, 0), Vector(0, 0, 1), 25), math.radians(-53.852389), math.radians(-36.147611)), False)
sketch10.addGeometry(Part.ArcOfCircle(Part.Circle(Vector(11.797351, -16.15, 0), Vector(0, 0, 1), 5), math.radians(-90), math.radians(-53.852389)), False)
sketch10.addGeometry(Part.LineSegment(Vector(11.797351, -21.15, 0), Vector(-11.797351, -21.15, 0)), False)
sketch10.addGeometry(Part.ArcOfCircle(Part.Circle(Vector(-11.797351, -16.15, 0), Vector(0, 0, 1), 5), math.radians(-126.147611), math.radians(-90)), False)
sketch10.addGeometry(Part.ArcOfCircle(Part.Circle(Vector(0, 0, 0), Vector(0, 0, 1), 25), math.radians(-143.852389), math.radians(-126.147611)), False)
sketch10.addGeometry(Part.ArcOfCircle(Part.Circle(Vector(-16.15, -11.797351, 0), Vector(0, 0, 1), 5), math.radians(-180), math.radians(-143.852389)), False)
sketch10.addGeometry(Part.LineSegment(Vector(-21.15, -11.797351, 0), Vector(-21.15, 11.797351, 0)), False)
sketch10.addGeometry(Part.ArcOfCircle(Part.Circle(Vector(-16.15, 11.797351, 0), Vector(0, 0, 1), 5), math.radians(143.852389), math.radians(180)), False)
sketch10.addGeometry(Part.ArcOfCircle(Part.Circle(Vector(0, 0, 0), Vector(0, 0, 1), 25), math.radians(126.147611), math.radians(143.852389)), False)
sketch10.addGeometry(Part.ArcOfCircle(Part.Circle(Vector(-11.797351, 16.15, 0), Vector(0, 0, 1), 5), math.radians(90), math.radians(126.147611)), False)
sketch10.addConstraint(Sketcher.Constraint("Tangent", 0, 2, 1, 2))
sketch10.addConstraint(Sketcher.Constraint("Tangent", 1, 1, 2, 2))
sketch10.addConstraint(Sketcher.Constraint("Tangent", 2, 1, 3, 2))
sketch10.addConstraint(Sketcher.Constraint("Tangent", 3, 1, 4, 1))
sketch10.addConstraint(Sketcher.Constraint("Tangent", 4, 2, 5, 2))
sketch10.addConstraint(Sketcher.Constraint("Tangent", 5, 1, 6, 2))
sketch10.addConstraint(Sketcher.Constraint("Tangent", 6, 1, 7, 2))
sketch10.addConstraint(Sketcher.Constraint("Tangent", 7, 1, 8, 1))
sketch10.addConstraint(Sketcher.Constraint("Tangent", 8, 2, 9, 2))
sketch10.addConstraint(Sketcher.Constraint("Tangent", 9, 1, 10, 2))
sketch10.addConstraint(Sketcher.Constraint("Tangent", 10, 1, 11, 2))
sketch10.addConstraint(Sketcher.Constraint("Tangent", 11, 1, 12, 1))
sketch10.addConstraint(Sketcher.Constraint("Tangent", 12, 2, 13, 2))
sketch10.addConstraint(Sketcher.Constraint("Tangent", 13, 1, 14, 2))
sketch10.addConstraint(Sketcher.Constraint("Tangent", 14, 1, 15, 2))
sketch10.addConstraint(Sketcher.Constraint("Tangent", 15, 1, 0, 1))
sketch10.addConstraint(Sketcher.Constraint("Horizontal", 0))
sketch10.addConstraint(Sketcher.Constraint("Vertical", 4))
sketch10.addConstraint(Sketcher.Constraint("Horizontal", 8))
sketch10.addConstraint(Sketcher.Constraint("Vertical", 12))
sketch10.addConstraint(Sketcher.Constraint("Coincident", 2, 3, -1, 1))
sketch10.addConstraint(Sketcher.Constraint("Coincident", 6, 3, -1, 1))
sketch10.addConstraint(Sketcher.Constraint("Coincident", 10, 3, -1, 1))
sketch10.addConstraint(Sketcher.Constraint("Coincident", 14, 3, -1, 1))
sketch10.addConstraint(Sketcher.Constraint("Equal", 1, 3))
sketch10.addConstraint(Sketcher.Constraint("Equal", 3, 5))
sketch10.addConstraint(Sketcher.Constraint("Equal", 2, 6))
sketch10.addConstraint(Sketcher.Constraint("Equal", 5, 7))
sketch10.addConstraint(Sketcher.Constraint("Equal", 7, 9))
sketch10.addConstraint(Sketcher.Constraint("Equal", 6, 10))
sketch10.addConstraint(Sketcher.Constraint("Equal", 9, 11))
sketch10.addConstraint(Sketcher.Constraint("Equal", 11, 13))
sketch10.addConstraint(Sketcher.Constraint("Equal", 10, 14))
sketch10.addConstraint(Sketcher.Constraint("Equal", 13, 15))
sketch10.addConstraint(Sketcher.Constraint("Horizontal", 5, 3, 11, 3))
sketch10.addConstraint(Sketcher.Constraint("Vertical", 1, 3, 7, 3))
sketch10.addConstraint(Sketcher.Constraint("Equal", 8, 4))
sketch10.addConstraint(Sketcher.Constraint("Radius", 1, Q("5 mm")))
sketch10.addConstraint(Sketcher.Constraint("Radius", 2, Q("25 mm")))
sketch10.addConstraint(Sketcher.Constraint("DistanceY", 7, 3, 1, 3, Q("32.3 mm")))
pad4 = body3.newObject("PartDesign::Pad", "Pad003")
pad4.Profile = sketch10
pad4.Length = 31
pad4.Reversed = True
body4 = doc.addObject("PartDesign::Body", "Body003")

sketch11 = body4.newObject("Sketcher::SketchObject", "Sketch010")
sketch11.AttachmentSupport = (doc.getObject("XZ_Plane003"), [""])
sketch11.MapMode = "FlatFace"
sketch11.AttachmentOffset = App.Placement(Vector(0, 0, -48), App.Rotation())
sketch11.addGeometry(Part.Circle(Vector(0, 0, 0), Vector(0, 0, 1), 2.5), False)
sketch11.addConstraint(Sketcher.Constraint("Coincident", 0, 3, -1, 1))
sketch11.addConstraint(Sketcher.Constraint("Diameter", 0, Q("5 mm")))
pad5 = body4.newObject("PartDesign::Pad", "Pad004")
pad5.Profile = sketch11
pad5.Length = 24
pad5.Reversed = True
doc.recompute()

chamfer4 = body4.newObject("PartDesign::Chamfer", "Chamfer003")
chamfer4.Base = (pad5, edges_at(pad5, [(0, 72, -2.5)]))
chamfer4.Size = 0.3
body5 = doc.addObject("PartDesign::Body", "Body004")

sketch12 = body5.newObject("Sketcher::SketchObject", "Sketch011")
sketch12.AttachmentSupport = (doc.getObject("XY_Plane004"), [""])
sketch12.MapMode = "FlatFace"
sketch12.AttachmentOffset = App.Placement(Vector(0, 0, 20.15), App.Rotation())
sketch12.addGeometry(Part.LineSegment(Vector(-4.5, 8.75, 0), Vector(-4.5, 2.75, 0)), False)
sketch12.addGeometry(Part.LineSegment(Vector(-4.5, 2.75, 0), Vector(4.5, 2.75, 0)), False)
sketch12.addGeometry(Part.LineSegment(Vector(4.5, 2.75, 0), Vector(4.5, 8.75, 0)), False)
sketch12.addGeometry(Part.LineSegment(Vector(4.5, 8.75, 0), Vector(-4.5, 8.75, 0)), False)
sketch12.addGeometry(Part.LineSegment(Vector(4, 3.25, 0), Vector(-4, 3.25, 0)), False)
sketch12.addGeometry(Part.LineSegment(Vector(-4, 3.25, 0), Vector(-4, 8.25, 0)), False)
sketch12.addGeometry(Part.LineSegment(Vector(-4, 8.25, 0), Vector(4, 8.25, 0)), False)
sketch12.addGeometry(Part.LineSegment(Vector(4, 8.25, 0), Vector(4, 3.25, 0)), False)
sketch12.addConstraint(Sketcher.Constraint("Coincident", 0, 2, 1, 1))
sketch12.addConstraint(Sketcher.Constraint("Coincident", 1, 2, 2, 1))
sketch12.addConstraint(Sketcher.Constraint("Coincident", 2, 2, 3, 1))
sketch12.addConstraint(Sketcher.Constraint("Coincident", 3, 2, 0, 1))
sketch12.addConstraint(Sketcher.Constraint("Coincident", 4, 2, 5, 1))
sketch12.addConstraint(Sketcher.Constraint("Coincident", 5, 2, 6, 1))
sketch12.addConstraint(Sketcher.Constraint("Coincident", 6, 2, 7, 1))
sketch12.addConstraint(Sketcher.Constraint("Coincident", 7, 2, 4, 1))
sketch12.addConstraint(Sketcher.Constraint("Vertical", 0))
sketch12.addConstraint(Sketcher.Constraint("Horizontal", 1))
sketch12.addConstraint(Sketcher.Constraint("Vertical", 2))
sketch12.addConstraint(Sketcher.Constraint("Horizontal", 3))
sketch12.addConstraint(Sketcher.Constraint("Horizontal", 4))
sketch12.addConstraint(Sketcher.Constraint("Vertical", 5))
sketch12.addConstraint(Sketcher.Constraint("Horizontal", 6))
sketch12.addConstraint(Sketcher.Constraint("Vertical", 7))
sketch12.addConstraint(Sketcher.Constraint("DistanceX", 1, 1, 1, 2, Q("9 mm")))
sketch12.addConstraint(Sketcher.Constraint("DistanceX", 4, 2, 4, 1, Q("8 mm")))
sketch12.addConstraint(Sketcher.Constraint("DistanceY", 0, 2, 0, 1, Q("6 mm")))
sketch12.addConstraint(Sketcher.Constraint("DistanceY", 5, 1, 5, 2, Q("5 mm")))
sketch12.addConstraint(Sketcher.Constraint("DistanceX", 4, 2, -1, 1, Q("4 mm")))
sketch12.addConstraint(Sketcher.Constraint("DistanceX", 0, 2, -1, 1, Q("4.5 mm")))
sketch12.addConstraint(Sketcher.Constraint("DistanceY", 0, 2, 4, 2, Q("0.5 mm")))
sketch12.addConstraint(Sketcher.Constraint("DistanceY", -1, 1, 0, 2, Q("2.75 mm")))
pad6 = body5.newObject("PartDesign::Pad", "Pad005")
pad6.Profile = sketch12
pad6.Length = 1.5

doc.recompute()
